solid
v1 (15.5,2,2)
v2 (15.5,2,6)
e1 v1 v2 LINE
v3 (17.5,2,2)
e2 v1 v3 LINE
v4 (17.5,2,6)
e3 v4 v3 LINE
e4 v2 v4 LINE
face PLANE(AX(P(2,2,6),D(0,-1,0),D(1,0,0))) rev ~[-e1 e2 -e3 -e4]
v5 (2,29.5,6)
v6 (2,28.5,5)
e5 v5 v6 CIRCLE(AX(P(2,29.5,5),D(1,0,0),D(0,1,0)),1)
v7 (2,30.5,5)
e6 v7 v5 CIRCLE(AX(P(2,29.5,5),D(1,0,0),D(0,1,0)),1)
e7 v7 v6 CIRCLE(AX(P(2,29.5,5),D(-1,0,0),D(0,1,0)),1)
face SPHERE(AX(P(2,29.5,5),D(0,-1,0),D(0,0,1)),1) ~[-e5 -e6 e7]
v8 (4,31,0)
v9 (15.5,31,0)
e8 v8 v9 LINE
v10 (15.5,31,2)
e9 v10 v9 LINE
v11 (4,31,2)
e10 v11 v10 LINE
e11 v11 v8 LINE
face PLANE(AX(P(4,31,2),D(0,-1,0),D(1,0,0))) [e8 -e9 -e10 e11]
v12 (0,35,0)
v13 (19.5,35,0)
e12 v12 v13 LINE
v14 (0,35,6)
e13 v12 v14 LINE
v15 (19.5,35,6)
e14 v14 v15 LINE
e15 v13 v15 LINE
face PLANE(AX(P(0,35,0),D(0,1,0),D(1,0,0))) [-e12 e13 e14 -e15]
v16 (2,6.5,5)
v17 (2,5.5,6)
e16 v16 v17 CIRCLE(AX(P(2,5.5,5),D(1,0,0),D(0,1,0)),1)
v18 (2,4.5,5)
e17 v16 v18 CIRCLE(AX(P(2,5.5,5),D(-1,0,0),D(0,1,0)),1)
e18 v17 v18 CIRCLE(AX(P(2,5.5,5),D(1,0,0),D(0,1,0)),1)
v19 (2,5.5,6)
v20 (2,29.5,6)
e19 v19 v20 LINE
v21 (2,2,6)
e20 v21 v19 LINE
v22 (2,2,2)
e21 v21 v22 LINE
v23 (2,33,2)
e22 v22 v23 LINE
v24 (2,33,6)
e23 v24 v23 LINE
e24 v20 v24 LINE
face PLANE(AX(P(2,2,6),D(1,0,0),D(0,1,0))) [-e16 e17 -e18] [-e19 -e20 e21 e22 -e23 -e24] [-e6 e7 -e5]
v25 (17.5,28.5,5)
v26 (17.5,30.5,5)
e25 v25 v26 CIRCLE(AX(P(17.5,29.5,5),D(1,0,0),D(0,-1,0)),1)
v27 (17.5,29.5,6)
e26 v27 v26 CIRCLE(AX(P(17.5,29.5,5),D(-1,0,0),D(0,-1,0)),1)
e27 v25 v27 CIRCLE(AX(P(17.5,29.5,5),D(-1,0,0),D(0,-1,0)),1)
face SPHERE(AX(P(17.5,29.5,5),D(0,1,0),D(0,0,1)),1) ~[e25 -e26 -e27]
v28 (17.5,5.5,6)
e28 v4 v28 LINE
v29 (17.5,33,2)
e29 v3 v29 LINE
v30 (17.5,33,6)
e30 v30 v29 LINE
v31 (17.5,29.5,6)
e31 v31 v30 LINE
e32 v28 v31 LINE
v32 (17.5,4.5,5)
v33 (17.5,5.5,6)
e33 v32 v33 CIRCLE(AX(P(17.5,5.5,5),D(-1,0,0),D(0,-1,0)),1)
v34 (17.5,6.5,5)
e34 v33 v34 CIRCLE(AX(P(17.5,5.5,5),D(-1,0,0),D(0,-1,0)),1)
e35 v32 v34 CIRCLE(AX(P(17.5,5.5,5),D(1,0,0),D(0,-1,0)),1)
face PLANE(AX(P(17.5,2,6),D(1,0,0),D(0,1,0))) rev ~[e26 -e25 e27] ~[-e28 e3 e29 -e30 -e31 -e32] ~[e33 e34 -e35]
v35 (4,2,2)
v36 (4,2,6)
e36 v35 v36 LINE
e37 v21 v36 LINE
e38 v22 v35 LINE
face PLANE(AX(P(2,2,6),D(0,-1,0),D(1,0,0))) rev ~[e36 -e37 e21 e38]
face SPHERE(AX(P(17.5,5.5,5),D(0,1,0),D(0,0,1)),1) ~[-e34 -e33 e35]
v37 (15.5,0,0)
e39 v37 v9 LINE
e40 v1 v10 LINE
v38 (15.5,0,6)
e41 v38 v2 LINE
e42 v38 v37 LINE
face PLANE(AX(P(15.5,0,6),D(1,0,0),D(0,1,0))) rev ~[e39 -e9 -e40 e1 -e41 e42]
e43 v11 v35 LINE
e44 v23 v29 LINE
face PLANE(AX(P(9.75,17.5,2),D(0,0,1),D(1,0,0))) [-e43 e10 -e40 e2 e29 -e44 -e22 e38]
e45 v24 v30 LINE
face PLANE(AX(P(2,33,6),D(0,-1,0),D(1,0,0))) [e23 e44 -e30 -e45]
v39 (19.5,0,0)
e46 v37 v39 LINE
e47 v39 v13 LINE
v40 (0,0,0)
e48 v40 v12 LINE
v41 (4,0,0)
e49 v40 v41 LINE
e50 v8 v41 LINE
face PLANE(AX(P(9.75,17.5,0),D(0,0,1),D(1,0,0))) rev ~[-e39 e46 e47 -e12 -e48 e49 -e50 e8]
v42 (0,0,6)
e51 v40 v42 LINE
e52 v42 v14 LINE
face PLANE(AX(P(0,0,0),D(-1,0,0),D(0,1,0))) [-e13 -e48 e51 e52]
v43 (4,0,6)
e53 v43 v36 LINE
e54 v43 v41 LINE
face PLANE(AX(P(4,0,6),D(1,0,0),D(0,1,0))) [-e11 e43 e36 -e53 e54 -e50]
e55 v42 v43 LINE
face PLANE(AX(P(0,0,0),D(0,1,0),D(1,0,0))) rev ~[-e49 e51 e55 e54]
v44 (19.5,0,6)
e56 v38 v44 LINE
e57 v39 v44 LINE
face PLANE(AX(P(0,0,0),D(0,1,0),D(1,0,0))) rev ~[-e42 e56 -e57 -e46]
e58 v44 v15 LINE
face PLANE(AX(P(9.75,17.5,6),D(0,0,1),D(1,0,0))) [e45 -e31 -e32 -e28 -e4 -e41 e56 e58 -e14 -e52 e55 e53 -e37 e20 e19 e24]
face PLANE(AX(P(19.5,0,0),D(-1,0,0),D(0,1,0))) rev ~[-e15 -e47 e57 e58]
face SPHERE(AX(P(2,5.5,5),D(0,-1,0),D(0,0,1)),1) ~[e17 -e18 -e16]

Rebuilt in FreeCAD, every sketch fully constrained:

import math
import FreeCAD as App
import Part
import Sketcher
from FreeCAD import Vector
Q = App.Units.Quantity


def add_polygon(sketch, points):
    """Adds a closed chain of lines whose ends are joined by coincident constraints."""
    first, n = sketch.GeometryCount, len(points)
    for a, b in zip(points, points[1:] + points[:1]):
        sketch.addGeometry(Part.LineSegment(App.Vector(*a, 0), App.Vector(*b, 0)), False)
    for i in range(n):
        sketch.addConstraint(Sketcher.Constraint("Coincident", first + i, 2, first + (i + 1) % n, 1))

doc = App.newDocument("Part")
body = doc.addObject("PartDesign::Body", "Body")

# Sketch on XY plane
sketch1 = doc.addObject("Sketcher::SketchObject", "Sketch")
body.addObject(sketch1)
sketch1.AttachmentSupport = (doc.XY_Plane, [""])
sketch1.MapMode = "FlatFace"
add_polygon(sketch1, [(0, 35), (0, 0), (19.5, 0), (19.5, 35)])  # lines 0-3
sketch1.addConstraint([
    Sketcher.Constraint("Vertical", 0),
    Sketcher.Constraint("Horizontal", 1),
    Sketcher.Constraint("Vertical", 2),
    Sketcher.Constraint("Horizontal", 3),
    Sketcher.Constraint("Coincident", 0, 2, -1, 1),
    Sketcher.Constraint("DistanceY", 0, 2, 0, 1, Q("35 mm")),
    Sketcher.Constraint("DistanceX", 1, 1, 1, 2, Q("19.5 mm")),
])
pad1 = doc.addObject("PartDesign::Pad", "Pad")
body.addObject(pad1)
pad1.Profile = sketch1
pad1.Length = 6

# Sketch on XY plane
sketch2 = doc.addObject("Sketcher::SketchObject", "Sketch001")
body.addObject(sketch2)
sketch2.AttachmentSupport = (doc.XY_Plane, [""])
sketch2.MapMode = "FlatFace"
sketch2.AttachmentOffset = App.Placement(Vector(0, 0, 6), App.Rotation())
add_polygon(sketch2, [(2, 33), (2, 2), (17.5, 2), (17.5, 33)])  # lines 0-3
sketch2.addConstraint([
    Sketcher.Constraint("Vertical", 0),
    Sketcher.Constraint("Horizontal", 1),
    Sketcher.Constraint("Vertical", 2),
    Sketcher.Constraint("Horizontal", 3),
    Sketcher.Constraint("DistanceY", 0, 2, 0, 1, Q("31 mm")),
    Sketcher.Constraint("DistanceX", 1, 1, 1, 2, Q("15.5 mm")),
    Sketcher.Constraint("DistanceX", -1, 1, 0, 2, Q("2 mm")),
    Sketcher.Constraint("DistanceY", -1, 1, 0, 2, Q("2 mm")),
])
pocket1 = doc.addObject("PartDesign::Pocket", "Pocket")
body.addObject(pocket1)
pocket1.Profile = sketch2
pocket1.Length = 4

# Sketch on XY plane
sketch3 = doc.addObject("Sketcher::SketchObject", "Sketch002")
body.addObject(sketch3)
sketch3.AttachmentSupport = (doc.XY_Plane, [""])
sketch3.MapMode = "FlatFace"
sketch3.AttachmentOffset = App.Placement(Vector(0, 0, 2), App.Rotation())
add_polygon(sketch3, [(4, 31), (4, 4), (15.5, 4), (15.5, 31)])  # lines 0-3
sketch3.addConstraint([
    Sketcher.Constraint("Vertical", 0),
    Sketcher.Constraint("Horizontal", 1),
    Sketcher.Constraint("Vertical", 2),
    Sketcher.Constraint("Horizontal", 3),
    Sketcher.Constraint("DistanceY", 0, 2, 0, 1, Q("27 mm")),
    Sketcher.Constraint("DistanceX", 1, 1, 1, 2, Q("11.5 mm")),
    Sketcher.Constraint("DistanceX", -1, 1, 0, 2, Q("4 mm")),
    Sketcher.Constraint("DistanceY", -1, 1, 0, 2, Q("4 mm")),
])
pocket2 = doc.addObject("PartDesign::Pocket", "Pocket001")
body.addObject(pocket2)
pocket2.Profile = sketch3
pocket2.Type = "ThroughAll"

# Sketch on XY plane
sketch4 = doc.addObject("Sketcher::SketchObject", "Sketch003")
body.addObject(sketch4)
sketch4.AttachmentSupport = (doc.XY_Plane, [""])
sketch4.MapMode = "FlatFace"
sketch4.AttachmentOffset = App.Placement(Vector(0, 0, 6), App.Rotation())
add_polygon(sketch4, [(4, 4), (4, 0), (15.5, 0), (15.5, 4)])  # lines 0-3
sketch4.addConstraint([
    Sketcher.Constraint("Vertical", 0),
    Sketcher.Constraint("Horizontal", 1),
    Sketcher.Constraint("Vertical", 2),
    Sketcher.Constraint("Horizontal", 3),
    Sketcher.Constraint("PointOnObject", 0, 2, -1),
    Sketcher.Constraint("DistanceY", 0, 2, 0, 1, Q("4 mm")),
    Sketcher.Constraint("DistanceX", 1, 1, 1, 2, Q("11.5 mm")),
    Sketcher.Constraint("DistanceX", -1, 1, 0, 2, Q("4 mm")),
])
pocket3 = doc.addObject("PartDesign::Pocket", "Pocket002")
body.addObject(pocket3)
pocket3.Profile = sketch4
pocket3.Type = "ThroughAll"

# Sketch on YZ plane
sketch5 = doc.addObject("Sketcher::SketchObject", "Sketch004")
body.addObject(sketch5)
sketch5.AttachmentSupport = (doc.YZ_Plane, [""])
sketch5.MapMode = "FlatFace"
sketch5.AttachmentOffset = App.Placement(Vector(0, 0, 2), App.Rotation())
sketch5.addGeometry([
    Part.ArcOfCircle(Part.Circle(Vector(5.5, 5, 0), Vector(0, 0, 1), 1), math.radians(0), math.radians(180)),
    Part.LineSegment(Vector(4.5, 5, 0), Vector(6.5, 5, 0)),
    Part.ArcOfCircle(Part.Circle(Vector(29.5, 5, 0), Vector(0, 0, 1), 1), math.radians(0), math.radians(180)),
    Part.LineSegment(Vector(28.5, 5, 0), Vector(30.5, 5, 0)),
], False)
sketch5.addGeometry(Part.LineSegment(Vector(4.5, 5, 0), Vector(30.5, 5, 0)), True)  # axis
sketch5.addConstraint([
    Sketcher.Constraint("Coincident", 0, 1, 1, 2),
    Sketcher.Constraint("Coincident", 1, 1, 0, 2),
    Sketcher.Constraint("Coincident", 2, 1, 3, 2),
    Sketcher.Constraint("Coincident", 3, 1, 2, 2),
    Sketcher.Constraint("Horizontal", 1),
    Sketcher.Constraint("Horizontal", 3),
    Sketcher.Constraint("Horizontal", 4),
    Sketcher.Constraint("Coincident", 4, 1, 1, 1),
    Sketcher.Constraint("Coincident", 4, 2, 2, 1),
    Sketcher.Constraint("Equal", 0, 2),
    Sketcher.Constraint("Horizontal", 0, 3, 2, 3),
    Sketcher.Constraint("Horizontal", 2, 3, 0, 1),
    Sketcher.Constraint("Radius", 0, Q("1 mm")),
    Sketcher.Constraint("DistanceX", 4, 1, 4, 2, Q("26 mm")),
    Sketcher.Constraint("DistanceY", -1, 1, 0, 3, Q("5 mm")),
    Sketcher.Constraint("DistanceX", -1, 1, 0, 3, Q("5.5 mm")),
])
revolution = doc.addObject("PartDesign::Revolution", "Revolution")
body.addObject(revolution)
revolution.Profile = sketch5
revolution.ReferenceAxis = (sketch5, ["Axis0"])
revolution.Angle = 180

# Sketch on YZ plane
sketch6 = doc.addObject("Sketcher::SketchObject", "Sketch005")
body.addObject(sketch6)
sketch6.AttachmentSupport = (doc.YZ_Plane, [""])
sketch6.MapMode = "FlatFace"
sketch6.AttachmentOffset = App.Placement(Vector(0, 0, 17.5), App.Rotation())
sketch6.addGeometry([
    Part.ArcOfCircle(Part.Circle(Vector(29.5, 5, 0), Vector(0, 0, 1), 1), math.radians(0), math.radians(180)),
    Part.LineSegment(Vector(30.5, 5, 0), Vector(28.5, 5, 0)),
    Part.ArcOfCircle(Part.Circle(Vector(5.5, 5, 0), Vector(0, 0, 1), 1), math.radians(0), math.radians(180)),
    Part.LineSegment(Vector(6.5, 5, 0), Vector(4.5, 5, 0)),
], False)
sketch6.addGeometry(Part.LineSegment(Vector(4.5, 5, 0), Vector(30.5, 5, 0)), True)  # axis
sketch6.addConstraint([
    Sketcher.Constraint("Coincident", 0, 1, 1, 1),
    Sketcher.Constraint("Coincident", 1, 2, 0, 2),
    Sketcher.Constraint("Coincident", 2, 1, 3, 1),
    Sketcher.Constraint("Coincident", 3, 2, 2, 2),
    Sketcher.Constraint("Horizontal", 1),
    Sketcher.Constraint("Horizontal", 3),
    Sketcher.Constraint("Horizontal", 4),
    Sketcher.Constraint("Coincident", 4, 1, 3, 2),
    Sketcher.Constraint("Coincident", 4, 2, 0, 1),
    Sketcher.Constraint("Equal", 0, 2),
    Sketcher.Constraint("Horizontal", 0, 3, 2, 3),
    Sketcher.Constraint("Horizontal", 2, 3, 0, 1),
    Sketcher.Constraint("Radius", 0, Q("1 mm")),
    Sketcher.Constraint("DistanceX", 4, 1, 4, 2, Q("26 mm")),
    Sketcher.Constraint("DistanceY", -1, 1, 0, 3, Q("5 mm")),
    Sketcher.Constraint("DistanceX", -1, 1, 0, 3, Q("29.5 mm")),
])
revolution2 = doc.addObject("PartDesign::Revolution", "Revolution001")
body.addObject(revolution2)
revolution2.Profile = sketch6
revolution2.ReferenceAxis = (sketch6, ["Axis0"])
revolution2.Angle = 180
revolution2.Reversed = True

doc.recompute()
